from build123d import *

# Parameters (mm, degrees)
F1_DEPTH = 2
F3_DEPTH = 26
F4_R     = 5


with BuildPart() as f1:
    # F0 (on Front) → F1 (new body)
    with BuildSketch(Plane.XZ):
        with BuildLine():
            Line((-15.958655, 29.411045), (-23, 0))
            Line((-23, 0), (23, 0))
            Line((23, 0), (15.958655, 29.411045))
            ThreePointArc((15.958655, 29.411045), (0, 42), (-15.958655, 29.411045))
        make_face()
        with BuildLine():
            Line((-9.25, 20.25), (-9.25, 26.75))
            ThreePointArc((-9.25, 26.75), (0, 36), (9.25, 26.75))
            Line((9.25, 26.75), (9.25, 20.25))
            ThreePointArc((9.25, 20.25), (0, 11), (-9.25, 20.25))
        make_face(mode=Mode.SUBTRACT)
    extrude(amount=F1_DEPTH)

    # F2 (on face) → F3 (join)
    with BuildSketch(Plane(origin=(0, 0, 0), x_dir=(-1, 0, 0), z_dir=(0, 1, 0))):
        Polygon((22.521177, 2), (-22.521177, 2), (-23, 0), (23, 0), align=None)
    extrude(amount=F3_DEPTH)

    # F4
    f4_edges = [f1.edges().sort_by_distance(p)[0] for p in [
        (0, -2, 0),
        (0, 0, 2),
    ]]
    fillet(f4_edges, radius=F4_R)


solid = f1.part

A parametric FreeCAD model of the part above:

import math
import FreeCAD as App
import Part
import Sketcher
Q = App.Units.Quantity


def edges_at(feature, points):
    """Names of the edges that pass closest to the given points."""
    edges = feature.Shape.Edges
    near = lambda p: min(range(len(edges)), key=lambda i: edges[i].distToShape(Part.Vertex(*p))[0])
    return sorted({f"Edge{near(p) + 1}" for p in points})

doc = App.newDocument("Part")
body = doc.addObject("PartDesign::Body", "Body")

sketch1 = doc.addObject("Sketcher::SketchObject", "Sketch")
body.addObject(sketch1)
sketch1.AttachmentSupport = (doc.XZ_Plane, [""])
sketch1.MapMode = "FlatFace"
sketch1.addGeometry(Part.LineSegment(App.Vector(-16, 29, 0), App.Vector(-23, 0, 0)), False)
sketch1.addGeometry(Part.LineSegment(App.Vector(-23, 0, 0), App.Vector(23, 0, 0)), False)
sketch1.addGeometry(Part.LineSegment(App.Vector(23, 0, 0), App.Vector(16, 29, 0)), False)
sketch1.addGeometry(Part.ArcOfCircle(Part.Circle(App.Vector(0, 26, 0), App.Vector(0, 0, 1), 16), math.radians(13), math.radians(167)), False)
sketch1.addGeometry(Part.ArcOfCircle(Part.Circle(App.Vector(0, 20, 0), App.Vector(0, 0, 1), 9), math.radians(180), math.radians(360)), False)
sketch1.addGeometry(Part.LineSegment(App.Vector(-9, 20, 0), App.Vector(-9, 27, 0)), False)
sketch1.addGeometry(Part.ArcOfCircle(Part.Circle(App.Vector(0, 27, 0), App.Vector(0, 0, 1), 9), math.radians(0), math.radians(180)), False)
sketch1.addGeometry(Part.LineSegment(App.Vector(9, 27, 0), App.Vector(9, 20, 0)), False)
sketch1.addConstraint(Sketcher.Constraint("Coincident", 0, 2, 1, 1))
sketch1.addConstraint(Sketcher.Constraint("Coincident", 1, 2, 2, 1))
sketch1.addConstraint(Sketcher.Constraint("Tangent", 2, 2, 3, 1))
sketch1.addConstraint(Sketcher.Constraint("Tangent", 3, 2, 0, 1))
sketch1.addConstraint(Sketcher.Constraint("Tangent", 4, 1, 5, 1))
sketch1.addConstraint(Sketcher.Constraint("Tangent", 5, 2, 6, 2))
sketch1.addConstraint(Sketcher.Constraint("Tangent", 6, 1, 7, 1))
sketch1.addConstraint(Sketcher.Constraint("Tangent", 7, 2, 4, 2))
sketch1.addConstraint(Sketcher.Constraint("Horizontal", 1))
sketch1.addConstraint(Sketcher.Constraint("Vertical", 5))
sketch1.addConstraint(Sketcher.Constraint("Vertical", 7))
sketch1.addConstraint(Sketcher.Constraint("Symmetric", 0, 2, 1, 2, -1, 1))
sketch1.addConstraint(Sketcher.Constraint("PointOnObject", 3, 3, -2))
sketch1.addConstraint(Sketcher.Constraint("PointOnObject", 4, 3, -2))
sketch1.addConstraint(Sketcher.Constraint("DistanceX", 1, 1, 1, 2, Q("46 mm")))
sketch1.addConstraint(Sketcher.Constraint("Radius", 4, Q("9.25 mm")))
sketch1.addConstraint(Sketcher.Constraint("DistanceY", 5, 1, 5, 2, Q("6.5 mm")))
sketch1.addConstraint(Sketcher.Constraint("DistanceY", -1, 1, 4, 3, Q("20.25 mm")))
sketch1.addConstraint(Sketcher.Constraint("Radius", 3, Q("16.409641 mm")))
sketch1.addConstraint(Sketcher.Constraint("Distance", 0, Q("30.242191 mm")))
pad1 = doc.addObject("PartDesign::Pad", "Pad")
body.addObject(pad1)
pad1.Profile = sketch1
pad1.Length = 2

sketch2 = doc.addObject("Sketcher::SketchObject", "Sketch001")
body.addObject(sketch2)
sketch2.AttachmentSupport = (doc.XZ_Plane, [""])
sketch2.MapMode = "FlatFace"
sketch2.addGeometry(Part.LineSegment(App.Vector(-22.5, 2, 0), App.Vector(22.5, 2, 0)), False)
sketch2.addGeometry(Part.LineSegment(App.Vector(22.5, 2, 0), App.Vector(23, 0, 0)), False)
sketch2.addGeometry(Part.LineSegment(App.Vector(23, 0, 0), App.Vector(-23, 0, 0)), False)
sketch2.addGeometry(Part.LineSegment(App.Vector(-23, 0, 0), App.Vector(-22.5, 2, 0)), False)
sketch2.addConstraint(Sketcher.Constraint("Coincident", 0, 2, 1, 1))
sketch2.addConstraint(Sketcher.Constraint("Coincident", 1, 2, 2, 1))
sketch2.addConstraint(Sketcher.Constraint("Coincident", 2, 2, 3, 1))
sketch2.addConstraint(Sketcher.Constraint("Coincident", 3, 2, 0, 1))
sketch2.addConstraint(Sketcher.Constraint("Horizontal", 0))
sketch2.addConstraint(Sketcher.Constraint("Horizontal", 2))
sketch2.addConstraint(Sketcher.Constraint("Symmetric", 1, 2, 2, 2, -1, 1))
sketch2.addConstraint(Sketcher.Constraint("Equal", 1, 3))
sketch2.addConstraint(Sketcher.Constraint("DistanceX", 2, 2, 2, 1, Q("46 mm")))
sketch2.addConstraint(Sketcher.Constraint("DistanceY", -1, 1, 0, 2, Q("2 mm")))
sketch2.addConstraint(Sketcher.Constraint("Distance", 1, Q("2.056519 mm")))
pad2 = doc.addObject("PartDesign::Pad", "Pad001")
body.addObject(pad2)
pad2.Profile = sketch2
pad2.Length = 26
pad2.Reversed = True
doc.recompute()

fillet = doc.addObject("PartDesign::Fillet", "Fillet")
body.addObject(fillet)
fillet.Base = (pad2, edges_at(pad2, [(0, -2, 0), (0, 0, 2)]))
fillet.Radius = 5

doc.recompute()
